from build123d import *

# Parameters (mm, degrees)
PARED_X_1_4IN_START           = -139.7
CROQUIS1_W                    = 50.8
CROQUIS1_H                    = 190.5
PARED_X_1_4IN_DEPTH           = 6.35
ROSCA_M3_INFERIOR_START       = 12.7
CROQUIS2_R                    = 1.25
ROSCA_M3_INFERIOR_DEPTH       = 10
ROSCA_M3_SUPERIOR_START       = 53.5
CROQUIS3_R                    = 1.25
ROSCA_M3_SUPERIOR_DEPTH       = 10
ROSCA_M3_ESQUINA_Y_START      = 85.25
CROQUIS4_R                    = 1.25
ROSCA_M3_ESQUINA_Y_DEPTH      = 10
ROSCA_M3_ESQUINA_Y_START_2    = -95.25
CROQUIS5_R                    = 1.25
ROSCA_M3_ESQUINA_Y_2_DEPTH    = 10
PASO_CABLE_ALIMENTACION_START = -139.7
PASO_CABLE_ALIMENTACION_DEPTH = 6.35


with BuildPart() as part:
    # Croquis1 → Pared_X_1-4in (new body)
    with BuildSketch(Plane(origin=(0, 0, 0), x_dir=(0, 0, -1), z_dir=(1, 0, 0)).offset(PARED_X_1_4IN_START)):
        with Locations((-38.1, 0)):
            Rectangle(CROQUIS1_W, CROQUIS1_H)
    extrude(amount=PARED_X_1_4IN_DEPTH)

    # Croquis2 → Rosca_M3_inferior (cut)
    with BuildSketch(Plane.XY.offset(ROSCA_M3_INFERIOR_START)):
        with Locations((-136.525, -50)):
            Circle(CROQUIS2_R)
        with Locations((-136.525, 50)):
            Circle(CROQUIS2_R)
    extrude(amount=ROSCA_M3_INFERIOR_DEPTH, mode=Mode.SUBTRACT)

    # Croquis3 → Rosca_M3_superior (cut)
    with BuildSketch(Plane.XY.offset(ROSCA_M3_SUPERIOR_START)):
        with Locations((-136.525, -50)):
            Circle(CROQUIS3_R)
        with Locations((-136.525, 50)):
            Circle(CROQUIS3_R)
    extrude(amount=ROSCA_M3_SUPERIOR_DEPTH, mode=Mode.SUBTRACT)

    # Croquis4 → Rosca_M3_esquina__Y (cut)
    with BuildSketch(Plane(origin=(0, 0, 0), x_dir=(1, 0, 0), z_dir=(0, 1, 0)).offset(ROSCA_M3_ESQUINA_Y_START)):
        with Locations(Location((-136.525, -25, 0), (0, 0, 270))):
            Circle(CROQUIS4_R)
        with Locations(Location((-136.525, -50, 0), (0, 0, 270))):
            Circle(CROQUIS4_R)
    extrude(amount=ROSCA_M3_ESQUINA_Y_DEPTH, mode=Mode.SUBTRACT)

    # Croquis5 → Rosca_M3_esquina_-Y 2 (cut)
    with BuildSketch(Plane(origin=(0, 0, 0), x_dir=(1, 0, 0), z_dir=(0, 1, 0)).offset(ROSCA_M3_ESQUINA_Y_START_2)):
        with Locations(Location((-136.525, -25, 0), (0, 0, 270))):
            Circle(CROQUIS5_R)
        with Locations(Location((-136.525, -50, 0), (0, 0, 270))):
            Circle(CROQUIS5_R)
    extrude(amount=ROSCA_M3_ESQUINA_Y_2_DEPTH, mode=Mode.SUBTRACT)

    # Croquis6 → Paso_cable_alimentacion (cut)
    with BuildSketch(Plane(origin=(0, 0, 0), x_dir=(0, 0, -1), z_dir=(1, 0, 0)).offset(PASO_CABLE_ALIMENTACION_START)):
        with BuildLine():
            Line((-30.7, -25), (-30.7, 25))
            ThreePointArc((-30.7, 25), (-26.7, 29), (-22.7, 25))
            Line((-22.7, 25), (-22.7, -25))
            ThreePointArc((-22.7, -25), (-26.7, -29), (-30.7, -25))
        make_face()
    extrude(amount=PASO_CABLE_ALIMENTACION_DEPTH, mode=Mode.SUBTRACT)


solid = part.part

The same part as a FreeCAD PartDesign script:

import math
import FreeCAD as App
import Part
import Sketcher

V = App.Vector

doc = App.newDocument("Part")
body = doc.addObject("PartDesign::Body", "Body")

# Sketch on YZ plane
sketch1 = body.newObject("Sketcher::SketchObject", "Sketch")
sketch1.AttachmentSupport = (doc.getObject("YZ_Plane"), [""])
sketch1.MapMode = "FlatFace"
sketch1.AttachmentOffset = App.Placement(V(0, 0, -139.7), App.Rotation())
sketch1.addGeometry(Part.LineSegment(V(95.25, 63.5, 0), V(-95.25, 63.5, 0)), False)
sketch1.addGeometry(Part.LineSegment(V(-95.25, 63.5, 0), V(-95.25, 12.7, 0)), False)
sketch1.addGeometry(Part.LineSegment(V(-95.25, 12.7, 0), V(95.25, 12.7, 0)), False)
sketch1.addGeometry(Part.LineSegment(V(95.25, 12.7, 0), V(95.25, 63.5, 0)), False)
sketch1.addConstraint(Sketcher.Constraint("Coincident", 0, 2, 1, 1))
sketch1.addConstraint(Sketcher.Constraint("Coincident", 1, 2, 2, 1))
sketch1.addConstraint(Sketcher.Constraint("Coincident", 2, 2, 3, 1))
sketch1.addConstraint(Sketcher.Constraint("Coincident", 3, 2, 0, 1))
sketch1.addConstraint(Sketcher.Constraint("Horizontal", 0))
sketch1.addConstraint(Sketcher.Constraint("Vertical", 1))
sketch1.addConstraint(Sketcher.Constraint("Horizontal", 2))
sketch1.addConstraint(Sketcher.Constraint("Vertical", 3))
sketch1.addConstraint(Sketcher.Constraint("DistanceX", 0, 2, 0, 1, 190.5))
sketch1.addConstraint(Sketcher.Constraint("DistanceY", 1, 2, 1, 1, 50.8))
sketch1.addConstraint(Sketcher.Constraint("DistanceY", -1, 1, 0, 2, 63.5))
sketch1.addConstraint(Sketcher.Constraint("DistanceX", 0, 2, -1, 1, 95.25))
pad1 = body.newObject("PartDesign::Pad", "Pad")
pad1.Profile = sketch1
pad1.Length = 6.35

# Sketch on XY plane
sketch2 = body.newObject("Sketcher::SketchObject", "Sketch001")
sketch2.AttachmentSupport = (doc.getObject("XY_Plane"), [""])
sketch2.MapMode = "FlatFace"
sketch2.AttachmentOffset = App.Placement(V(0, 0, 12.7), App.Rotation())
sketch2.addGeometry(Part.Circle(V(-136.525, -50, 0), V(0, 0, 1), 1.25), False)
sketch2.addGeometry(Part.Circle(V(-136.525, 50, 0), V(0, 0, 1), 1.25), False)
sketch2.addConstraint(Sketcher.Constraint("Equal", 0, 1))
sketch2.addConstraint(Sketcher.Constraint("Symmetric", 0, 3, 1, 3, -1))
sketch2.addConstraint(Sketcher.Constraint("Diameter", 0, 2.5))
sketch2.addConstraint(Sketcher.Constraint("DistanceY", 0, 3, -1, 1, 50.0))
sketch2.addConstraint(Sketcher.Constraint("DistanceX", 0, 3, -1, 1, 136.525))
pocket1 = body.newObject("PartDesign::Pocket", "Pocket")
pocket1.Profile = sketch2
pocket1.Length = 10
pocket1.Reversed = True

# Sketch on XY plane
sketch3 = body.newObject("Sketcher::SketchObject", "Sketch002")
sketch3.AttachmentSupport = (doc.getObject("XY_Plane"), [""])
sketch3.MapMode = "FlatFace"
sketch3.AttachmentOffset = App.Placement(V(0, 0, 53.5), App.Rotation())
sketch3.addGeometry(Part.Circle(V(-136.525, -50, 0), V(0, 0, 1), 1.25), False)
sketch3.addGeometry(Part.Circle(V(-136.525, 50, 0), V(0, 0, 1), 1.25), False)
sketch3.addConstraint(Sketcher.Constraint("Equal", 0, 1))
sketch3.addConstraint(Sketcher.Constraint("Symmetric", 0, 3, 1, 3, -1))
sketch3.addConstraint(Sketcher.Constraint("Diameter", 0, 2.5))
sketch3.addConstraint(Sketcher.Constraint("DistanceY", 0, 3, -1, 1, 50.0))
sketch3.addConstraint(Sketcher.Constraint("DistanceX", 0, 3, -1, 1, 136.525))
pocket2 = body.newObject("PartDesign::Pocket", "Pocket001")
pocket2.Profile = sketch3
pocket2.Length = 10
pocket2.Reversed = True

# Sketch on XZ plane
sketch4 = body.newObject("Sketcher::SketchObject", "Sketch003")
sketch4.AttachmentSupport = (doc.getObject("XZ_Plane"), [""])
sketch4.MapMode = "FlatFace"
sketch4.AttachmentOffset = App.Placement(V(0, 0, -85.25), App.Rotation())
sketch4.addGeometry(Part.Circle(V(-136.525, 25, 0), V(0, 0, 1), 1.25), False)
sketch4.addGeometry(Part.Circle(V(-136.525, 50, 0), V(0, 0, 1), 1.25), False)
sketch4.addConstraint(Sketcher.Constraint("Equal", 0, 1))
sketch4.addConstraint(Sketcher.Constraint("Vertical", 0, 3, 1, 3))
sketch4.addConstraint(Sketcher.Constraint("Diameter", 0, 2.5))
sketch4.addConstraint(Sketcher.Constraint("DistanceY", -1, 1, 0, 3, 25.0))
sketch4.addConstraint(Sketcher.Constraint("DistanceY", -1, 1, 1, 3, 50.0))
sketch4.addConstraint(Sketcher.Constraint("DistanceX", 0, 3, -1, 1, 136.525))
pocket3 = body.newObject("PartDesign::Pocket", "Pocket002")
pocket3.Profile = sketch4
pocket3.Length = 10

# Sketch on XZ plane
sketch5 = body.newObject("Sketcher::SketchObject", "Sketch004")
sketch5.AttachmentSupport = (doc.getObject("XZ_Plane"), [""])
sketch5.MapMode = "FlatFace"
sketch5.AttachmentOffset = App.Placement(V(0, 0, 95.25), App.Rotation())
sketch5.addGeometry(Part.Circle(V(-136.525, 25, 0), V(0, 0, 1), 1.25), False)
sketch5.addGeometry(Part.Circle(V(-136.525, 50, 0), V(0, 0, 1), 1.25), False)
sketch5.addConstraint(Sketcher.Constraint("Equal", 0, 1))
sketch5.addConstraint(Sketcher.Constraint("Vertical", 0, 3, 1, 3))
sketch5.addConstraint(Sketcher.Constraint("Diameter", 0, 2.5))
sketch5.addConstraint(Sketcher.Constraint("DistanceY", -1, 1, 0, 3, 25.0))
sketch5.addConstraint(Sketcher.Constraint("DistanceY", -1, 1, 1, 3, 50.0))
sketch5.addConstraint(Sketcher.Constraint("DistanceX", 0, 3, -1, 1, 136.525))
pocket4 = body.newObject("PartDesign::Pocket", "Pocket003")
pocket4.Profile = sketch5
pocket4.Length = 10

# Sketch on YZ plane
sketch6 = body.newObject("Sketcher::SketchObject", "Sketch005")
sketch6.AttachmentSupport = (doc.getObject("YZ_Plane"), [""])
sketch6.MapMode = "FlatFace"
sketch6.AttachmentOffset = App.Placement(V(0, 0, -139.7), App.Rotation())
sketch6.addGeometry(Part.LineSegment(V(25, 30.7, 0), V(-25, 30.7, 0)), False)
sketch6.addGeometry(Part.ArcOfCircle(Part.Circle(V(-25, 26.7, 0), V(0, 0, 1), 4), math.radians(90), math.radians(270)), False)
sketch6.addGeometry(Part.LineSegment(V(-25, 22.7, 0), V(25, 22.7, 0)), False)
sketch6.addGeometry(Part.ArcOfCircle(Part.Circle(V(25, 26.7, 0), V(0, 0, 1), 4), math.radians(-90), math.radians(90)), False)
sketch6.addConstraint(Sketcher.Constraint("Tangent", 0, 2, 1, 1))
sketch6.addConstraint(Sketcher.Constraint("Tangent", 1, 2, 2, 1))
sketch6.addConstraint(Sketcher.Constraint("Tangent", 2, 2, 3, 1))
sketch6.addConstraint(Sketcher.Constraint("Tangent", 3, 2, 0, 1))
sketch6.addConstraint(Sketcher.Constraint("Horizontal", 0))
sketch6.addConstraint(Sketcher.Constraint("Horizontal", 2))
sketch6.addConstraint(Sketcher.Constraint("Radius", 1, 4.0))
sketch6.addConstraint(Sketcher.Constraint("DistanceX", 0, 2, 0, 1, 50.0))
sketch6.addConstraint(Sketcher.Constraint("DistanceX", 1, 3, -1, 1, 25.0))
sketch6.addConstraint(Sketcher.Constraint("DistanceY", -1, 1, 1, 3, 26.7))
pocket5 = body.newObject("PartDesign::Pocket", "Pocket004")
pocket5.Profile = sketch6
pocket5.Length = 6.35
pocket5.Reversed = True

doc.recompute()
